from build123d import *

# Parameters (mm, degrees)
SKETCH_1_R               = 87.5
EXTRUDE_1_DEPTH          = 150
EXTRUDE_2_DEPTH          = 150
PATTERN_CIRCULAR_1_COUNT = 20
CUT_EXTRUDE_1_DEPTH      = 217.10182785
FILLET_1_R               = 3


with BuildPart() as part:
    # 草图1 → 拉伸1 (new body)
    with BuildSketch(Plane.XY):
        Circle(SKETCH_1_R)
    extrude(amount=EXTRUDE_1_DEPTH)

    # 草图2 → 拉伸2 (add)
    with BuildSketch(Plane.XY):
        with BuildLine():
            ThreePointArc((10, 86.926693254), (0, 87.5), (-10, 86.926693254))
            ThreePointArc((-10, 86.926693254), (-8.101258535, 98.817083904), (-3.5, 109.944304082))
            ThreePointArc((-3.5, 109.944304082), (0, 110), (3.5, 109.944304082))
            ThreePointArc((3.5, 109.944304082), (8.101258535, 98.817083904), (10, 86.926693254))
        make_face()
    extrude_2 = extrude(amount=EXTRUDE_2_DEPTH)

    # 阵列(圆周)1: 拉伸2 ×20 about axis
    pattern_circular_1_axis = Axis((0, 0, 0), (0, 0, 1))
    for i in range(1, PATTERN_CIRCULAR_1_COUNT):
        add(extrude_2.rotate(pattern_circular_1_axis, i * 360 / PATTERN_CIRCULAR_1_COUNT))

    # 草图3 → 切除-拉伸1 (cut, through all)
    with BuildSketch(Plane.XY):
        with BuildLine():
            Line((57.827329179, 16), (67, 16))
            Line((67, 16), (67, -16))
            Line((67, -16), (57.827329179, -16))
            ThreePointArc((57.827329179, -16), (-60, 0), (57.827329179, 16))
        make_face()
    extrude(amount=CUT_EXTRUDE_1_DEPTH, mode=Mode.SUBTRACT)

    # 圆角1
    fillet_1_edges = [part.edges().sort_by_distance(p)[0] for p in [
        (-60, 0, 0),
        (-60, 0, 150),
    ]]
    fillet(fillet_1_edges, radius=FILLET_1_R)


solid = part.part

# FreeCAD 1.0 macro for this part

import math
import FreeCAD as App
import Part
import Sketcher
Q = App.Units.Quantity


def edges_at(feature, points):
    """Names of the edges that pass closest to the given points."""
    edges = feature.Shape.Edges
    near = lambda p: min(range(len(edges)), key=lambda i: edges[i].distToShape(Part.Vertex(*p))[0])
    return sorted({f"Edge{near(p) + 1}" for p in points})

doc = App.newDocument("Part")
body = doc.addObject("PartDesign::Body", "Body")

# Sketch on XY plane
sketch1 = doc.addObject("Sketcher::SketchObject", "Sketch")
body.addObject(sketch1)
sketch1.AttachmentSupport = (doc.XY_Plane, [""])
sketch1.MapMode = "FlatFace"
sketch1.addGeometry(Part.Circle(App.Vector(0, 0, 0), App.Vector(0, 0, 1), 88), False)
sketch1.addConstraint([
    Sketcher.Constraint("Coincident", 0, 3, -1, 1),
    Sketcher.Constraint("Diameter", 0, Q("175 mm")),
])
pad1 = doc.addObject("PartDesign::Pad", "Pad")
body.addObject(pad1)
pad1.Profile = sketch1
pad1.Length = 150

# Sketch on XY plane
sketch2 = doc.addObject("Sketcher::SketchObject", "Sketch001")
body.addObject(sketch2)
sketch2.AttachmentSupport = (doc.XY_Plane, [""])
sketch2.MapMode = "FlatFace"
sketch2.addGeometry([
    Part.ArcOfCircle(Part.Circle(App.Vector(0, 0, 0), App.Vector(0, 0, 1), 88), math.radians(83.44), math.radians(96.56)),
    Part.ArcOfCircle(Part.Circle(App.Vector(-42, 85, 0), App.Vector(0, 0, 1), 52), math.radians(2), math.radians(29)),
    Part.ArcOfCircle(Part.Circle(App.Vector(0, 0, 0), App.Vector(0, 0, 1), 110), math.radians(88.18), math.radians(91.82)),
    Part.ArcOfCircle(Part.Circle(App.Vector(42, 85, 0), App.Vector(0, 0, 1), 52), math.radians(151), math.radians(178)),
], False)
sketch2.addConstraint([
    Sketcher.Constraint("Coincident", 0, 1, 1, 1),
    Sketcher.Constraint("Coincident", 1, 2, 2, 1),
    Sketcher.Constraint("Coincident", 2, 2, 3, 1),
    Sketcher.Constraint("Coincident", 3, 2, 0, 2),
    Sketcher.Constraint("Coincident", 0, 3, -1, 1),
    Sketcher.Constraint("Coincident", 2, 3, -1, 1),
    Sketcher.Constraint("Equal", 1, 3),
    Sketcher.Constraint("Symmetric", 1, 3, 3, 3, -2),
    Sketcher.Constraint("Radius", 2, Q("110.000001 mm")),
    Sketcher.Constraint("Radius", 0, Q("87.5 mm")),
    Sketcher.Constraint("DistanceX", -1, 1, 0, 1, Q("10 mm")),
    Sketcher.Constraint("DistanceX", 2, 2, 1, 2, Q("7 mm")),
    Sketcher.Constraint("Radius", 1, Q("51.629598 mm")),
])
pad2 = doc.addObject("PartDesign::Pad", "Pad001")
body.addObject(pad2)
pad2.Profile = sketch2
pad2.Length = 150
doc.recompute()

polarpattern = doc.addObject("PartDesign::PolarPattern", "PolarPattern")
body.addObject(polarpattern)
polarpattern.Originals = [pad2]
polarpattern.Axis = (doc.Z_Axis, [""])
polarpattern.Angle = 360
polarpattern.Occurrences = 20
body.Tip = polarpattern

# Sketch on XY plane
sketch3 = doc.addObject("Sketcher::SketchObject", "Sketch002")
body.addObject(sketch3)
sketch3.AttachmentSupport = (doc.XY_Plane, [""])
sketch3.MapMode = "FlatFace"
sketch3.addGeometry([
    Part.LineSegment(App.Vector(67, 16, 0), App.Vector(58, 16, 0)),
    Part.ArcOfCircle(Part.Circle(App.Vector(0, 0, 0), App.Vector(0, 0, 1), 60), math.radians(15), math.radians(345)),
    Part.LineSegment(App.Vector(58, -16, 0), App.Vector(67, -16, 0)),
    Part.LineSegment(App.Vector(67, -16, 0), App.Vector(67, 16, 0)),
], False)
sketch3.addConstraint([
    Sketcher.Constraint("Coincident", 0, 2, 1, 1),
    Sketcher.Constraint("Coincident", 1, 2, 2, 1),
    Sketcher.Constraint("Coincident", 2, 2, 3, 1),
    Sketcher.Constraint("Coincident", 3, 2, 0, 1),
    Sketcher.Constraint("Horizontal", 0),
    Sketcher.Constraint("Horizontal", 2),
    Sketcher.Constraint("Vertical", 3),
    Sketcher.Constraint("Coincident", 1, 3, -1, 1),
    Sketcher.Constraint("Vertical", 0, 2, 1, 2),
    Sketcher.Constraint("Radius", 1, Q("60 mm")),
    Sketcher.Constraint("DistanceY", 3, 1, 3, 2, Q("32 mm")),
    Sketcher.Constraint("DistanceX", -1, 1, 2, 2, Q("67 mm")),
])
pocket1 = doc.addObject("PartDesign::Pocket", "Pocket")
body.addObject(pocket1)
pocket1.Profile = sketch3
pocket1.Type = "ThroughAll"
pocket1.Reversed = True
doc.recompute()

fillet = doc.addObject("PartDesign::Fillet", "Fillet")
body.addObject(fillet)
fillet.Base = (pocket1, edges_at(pocket1, [(-60, 0, 0), (-60, 0, 150)]))
fillet.Radius = 3

doc.recompute()
